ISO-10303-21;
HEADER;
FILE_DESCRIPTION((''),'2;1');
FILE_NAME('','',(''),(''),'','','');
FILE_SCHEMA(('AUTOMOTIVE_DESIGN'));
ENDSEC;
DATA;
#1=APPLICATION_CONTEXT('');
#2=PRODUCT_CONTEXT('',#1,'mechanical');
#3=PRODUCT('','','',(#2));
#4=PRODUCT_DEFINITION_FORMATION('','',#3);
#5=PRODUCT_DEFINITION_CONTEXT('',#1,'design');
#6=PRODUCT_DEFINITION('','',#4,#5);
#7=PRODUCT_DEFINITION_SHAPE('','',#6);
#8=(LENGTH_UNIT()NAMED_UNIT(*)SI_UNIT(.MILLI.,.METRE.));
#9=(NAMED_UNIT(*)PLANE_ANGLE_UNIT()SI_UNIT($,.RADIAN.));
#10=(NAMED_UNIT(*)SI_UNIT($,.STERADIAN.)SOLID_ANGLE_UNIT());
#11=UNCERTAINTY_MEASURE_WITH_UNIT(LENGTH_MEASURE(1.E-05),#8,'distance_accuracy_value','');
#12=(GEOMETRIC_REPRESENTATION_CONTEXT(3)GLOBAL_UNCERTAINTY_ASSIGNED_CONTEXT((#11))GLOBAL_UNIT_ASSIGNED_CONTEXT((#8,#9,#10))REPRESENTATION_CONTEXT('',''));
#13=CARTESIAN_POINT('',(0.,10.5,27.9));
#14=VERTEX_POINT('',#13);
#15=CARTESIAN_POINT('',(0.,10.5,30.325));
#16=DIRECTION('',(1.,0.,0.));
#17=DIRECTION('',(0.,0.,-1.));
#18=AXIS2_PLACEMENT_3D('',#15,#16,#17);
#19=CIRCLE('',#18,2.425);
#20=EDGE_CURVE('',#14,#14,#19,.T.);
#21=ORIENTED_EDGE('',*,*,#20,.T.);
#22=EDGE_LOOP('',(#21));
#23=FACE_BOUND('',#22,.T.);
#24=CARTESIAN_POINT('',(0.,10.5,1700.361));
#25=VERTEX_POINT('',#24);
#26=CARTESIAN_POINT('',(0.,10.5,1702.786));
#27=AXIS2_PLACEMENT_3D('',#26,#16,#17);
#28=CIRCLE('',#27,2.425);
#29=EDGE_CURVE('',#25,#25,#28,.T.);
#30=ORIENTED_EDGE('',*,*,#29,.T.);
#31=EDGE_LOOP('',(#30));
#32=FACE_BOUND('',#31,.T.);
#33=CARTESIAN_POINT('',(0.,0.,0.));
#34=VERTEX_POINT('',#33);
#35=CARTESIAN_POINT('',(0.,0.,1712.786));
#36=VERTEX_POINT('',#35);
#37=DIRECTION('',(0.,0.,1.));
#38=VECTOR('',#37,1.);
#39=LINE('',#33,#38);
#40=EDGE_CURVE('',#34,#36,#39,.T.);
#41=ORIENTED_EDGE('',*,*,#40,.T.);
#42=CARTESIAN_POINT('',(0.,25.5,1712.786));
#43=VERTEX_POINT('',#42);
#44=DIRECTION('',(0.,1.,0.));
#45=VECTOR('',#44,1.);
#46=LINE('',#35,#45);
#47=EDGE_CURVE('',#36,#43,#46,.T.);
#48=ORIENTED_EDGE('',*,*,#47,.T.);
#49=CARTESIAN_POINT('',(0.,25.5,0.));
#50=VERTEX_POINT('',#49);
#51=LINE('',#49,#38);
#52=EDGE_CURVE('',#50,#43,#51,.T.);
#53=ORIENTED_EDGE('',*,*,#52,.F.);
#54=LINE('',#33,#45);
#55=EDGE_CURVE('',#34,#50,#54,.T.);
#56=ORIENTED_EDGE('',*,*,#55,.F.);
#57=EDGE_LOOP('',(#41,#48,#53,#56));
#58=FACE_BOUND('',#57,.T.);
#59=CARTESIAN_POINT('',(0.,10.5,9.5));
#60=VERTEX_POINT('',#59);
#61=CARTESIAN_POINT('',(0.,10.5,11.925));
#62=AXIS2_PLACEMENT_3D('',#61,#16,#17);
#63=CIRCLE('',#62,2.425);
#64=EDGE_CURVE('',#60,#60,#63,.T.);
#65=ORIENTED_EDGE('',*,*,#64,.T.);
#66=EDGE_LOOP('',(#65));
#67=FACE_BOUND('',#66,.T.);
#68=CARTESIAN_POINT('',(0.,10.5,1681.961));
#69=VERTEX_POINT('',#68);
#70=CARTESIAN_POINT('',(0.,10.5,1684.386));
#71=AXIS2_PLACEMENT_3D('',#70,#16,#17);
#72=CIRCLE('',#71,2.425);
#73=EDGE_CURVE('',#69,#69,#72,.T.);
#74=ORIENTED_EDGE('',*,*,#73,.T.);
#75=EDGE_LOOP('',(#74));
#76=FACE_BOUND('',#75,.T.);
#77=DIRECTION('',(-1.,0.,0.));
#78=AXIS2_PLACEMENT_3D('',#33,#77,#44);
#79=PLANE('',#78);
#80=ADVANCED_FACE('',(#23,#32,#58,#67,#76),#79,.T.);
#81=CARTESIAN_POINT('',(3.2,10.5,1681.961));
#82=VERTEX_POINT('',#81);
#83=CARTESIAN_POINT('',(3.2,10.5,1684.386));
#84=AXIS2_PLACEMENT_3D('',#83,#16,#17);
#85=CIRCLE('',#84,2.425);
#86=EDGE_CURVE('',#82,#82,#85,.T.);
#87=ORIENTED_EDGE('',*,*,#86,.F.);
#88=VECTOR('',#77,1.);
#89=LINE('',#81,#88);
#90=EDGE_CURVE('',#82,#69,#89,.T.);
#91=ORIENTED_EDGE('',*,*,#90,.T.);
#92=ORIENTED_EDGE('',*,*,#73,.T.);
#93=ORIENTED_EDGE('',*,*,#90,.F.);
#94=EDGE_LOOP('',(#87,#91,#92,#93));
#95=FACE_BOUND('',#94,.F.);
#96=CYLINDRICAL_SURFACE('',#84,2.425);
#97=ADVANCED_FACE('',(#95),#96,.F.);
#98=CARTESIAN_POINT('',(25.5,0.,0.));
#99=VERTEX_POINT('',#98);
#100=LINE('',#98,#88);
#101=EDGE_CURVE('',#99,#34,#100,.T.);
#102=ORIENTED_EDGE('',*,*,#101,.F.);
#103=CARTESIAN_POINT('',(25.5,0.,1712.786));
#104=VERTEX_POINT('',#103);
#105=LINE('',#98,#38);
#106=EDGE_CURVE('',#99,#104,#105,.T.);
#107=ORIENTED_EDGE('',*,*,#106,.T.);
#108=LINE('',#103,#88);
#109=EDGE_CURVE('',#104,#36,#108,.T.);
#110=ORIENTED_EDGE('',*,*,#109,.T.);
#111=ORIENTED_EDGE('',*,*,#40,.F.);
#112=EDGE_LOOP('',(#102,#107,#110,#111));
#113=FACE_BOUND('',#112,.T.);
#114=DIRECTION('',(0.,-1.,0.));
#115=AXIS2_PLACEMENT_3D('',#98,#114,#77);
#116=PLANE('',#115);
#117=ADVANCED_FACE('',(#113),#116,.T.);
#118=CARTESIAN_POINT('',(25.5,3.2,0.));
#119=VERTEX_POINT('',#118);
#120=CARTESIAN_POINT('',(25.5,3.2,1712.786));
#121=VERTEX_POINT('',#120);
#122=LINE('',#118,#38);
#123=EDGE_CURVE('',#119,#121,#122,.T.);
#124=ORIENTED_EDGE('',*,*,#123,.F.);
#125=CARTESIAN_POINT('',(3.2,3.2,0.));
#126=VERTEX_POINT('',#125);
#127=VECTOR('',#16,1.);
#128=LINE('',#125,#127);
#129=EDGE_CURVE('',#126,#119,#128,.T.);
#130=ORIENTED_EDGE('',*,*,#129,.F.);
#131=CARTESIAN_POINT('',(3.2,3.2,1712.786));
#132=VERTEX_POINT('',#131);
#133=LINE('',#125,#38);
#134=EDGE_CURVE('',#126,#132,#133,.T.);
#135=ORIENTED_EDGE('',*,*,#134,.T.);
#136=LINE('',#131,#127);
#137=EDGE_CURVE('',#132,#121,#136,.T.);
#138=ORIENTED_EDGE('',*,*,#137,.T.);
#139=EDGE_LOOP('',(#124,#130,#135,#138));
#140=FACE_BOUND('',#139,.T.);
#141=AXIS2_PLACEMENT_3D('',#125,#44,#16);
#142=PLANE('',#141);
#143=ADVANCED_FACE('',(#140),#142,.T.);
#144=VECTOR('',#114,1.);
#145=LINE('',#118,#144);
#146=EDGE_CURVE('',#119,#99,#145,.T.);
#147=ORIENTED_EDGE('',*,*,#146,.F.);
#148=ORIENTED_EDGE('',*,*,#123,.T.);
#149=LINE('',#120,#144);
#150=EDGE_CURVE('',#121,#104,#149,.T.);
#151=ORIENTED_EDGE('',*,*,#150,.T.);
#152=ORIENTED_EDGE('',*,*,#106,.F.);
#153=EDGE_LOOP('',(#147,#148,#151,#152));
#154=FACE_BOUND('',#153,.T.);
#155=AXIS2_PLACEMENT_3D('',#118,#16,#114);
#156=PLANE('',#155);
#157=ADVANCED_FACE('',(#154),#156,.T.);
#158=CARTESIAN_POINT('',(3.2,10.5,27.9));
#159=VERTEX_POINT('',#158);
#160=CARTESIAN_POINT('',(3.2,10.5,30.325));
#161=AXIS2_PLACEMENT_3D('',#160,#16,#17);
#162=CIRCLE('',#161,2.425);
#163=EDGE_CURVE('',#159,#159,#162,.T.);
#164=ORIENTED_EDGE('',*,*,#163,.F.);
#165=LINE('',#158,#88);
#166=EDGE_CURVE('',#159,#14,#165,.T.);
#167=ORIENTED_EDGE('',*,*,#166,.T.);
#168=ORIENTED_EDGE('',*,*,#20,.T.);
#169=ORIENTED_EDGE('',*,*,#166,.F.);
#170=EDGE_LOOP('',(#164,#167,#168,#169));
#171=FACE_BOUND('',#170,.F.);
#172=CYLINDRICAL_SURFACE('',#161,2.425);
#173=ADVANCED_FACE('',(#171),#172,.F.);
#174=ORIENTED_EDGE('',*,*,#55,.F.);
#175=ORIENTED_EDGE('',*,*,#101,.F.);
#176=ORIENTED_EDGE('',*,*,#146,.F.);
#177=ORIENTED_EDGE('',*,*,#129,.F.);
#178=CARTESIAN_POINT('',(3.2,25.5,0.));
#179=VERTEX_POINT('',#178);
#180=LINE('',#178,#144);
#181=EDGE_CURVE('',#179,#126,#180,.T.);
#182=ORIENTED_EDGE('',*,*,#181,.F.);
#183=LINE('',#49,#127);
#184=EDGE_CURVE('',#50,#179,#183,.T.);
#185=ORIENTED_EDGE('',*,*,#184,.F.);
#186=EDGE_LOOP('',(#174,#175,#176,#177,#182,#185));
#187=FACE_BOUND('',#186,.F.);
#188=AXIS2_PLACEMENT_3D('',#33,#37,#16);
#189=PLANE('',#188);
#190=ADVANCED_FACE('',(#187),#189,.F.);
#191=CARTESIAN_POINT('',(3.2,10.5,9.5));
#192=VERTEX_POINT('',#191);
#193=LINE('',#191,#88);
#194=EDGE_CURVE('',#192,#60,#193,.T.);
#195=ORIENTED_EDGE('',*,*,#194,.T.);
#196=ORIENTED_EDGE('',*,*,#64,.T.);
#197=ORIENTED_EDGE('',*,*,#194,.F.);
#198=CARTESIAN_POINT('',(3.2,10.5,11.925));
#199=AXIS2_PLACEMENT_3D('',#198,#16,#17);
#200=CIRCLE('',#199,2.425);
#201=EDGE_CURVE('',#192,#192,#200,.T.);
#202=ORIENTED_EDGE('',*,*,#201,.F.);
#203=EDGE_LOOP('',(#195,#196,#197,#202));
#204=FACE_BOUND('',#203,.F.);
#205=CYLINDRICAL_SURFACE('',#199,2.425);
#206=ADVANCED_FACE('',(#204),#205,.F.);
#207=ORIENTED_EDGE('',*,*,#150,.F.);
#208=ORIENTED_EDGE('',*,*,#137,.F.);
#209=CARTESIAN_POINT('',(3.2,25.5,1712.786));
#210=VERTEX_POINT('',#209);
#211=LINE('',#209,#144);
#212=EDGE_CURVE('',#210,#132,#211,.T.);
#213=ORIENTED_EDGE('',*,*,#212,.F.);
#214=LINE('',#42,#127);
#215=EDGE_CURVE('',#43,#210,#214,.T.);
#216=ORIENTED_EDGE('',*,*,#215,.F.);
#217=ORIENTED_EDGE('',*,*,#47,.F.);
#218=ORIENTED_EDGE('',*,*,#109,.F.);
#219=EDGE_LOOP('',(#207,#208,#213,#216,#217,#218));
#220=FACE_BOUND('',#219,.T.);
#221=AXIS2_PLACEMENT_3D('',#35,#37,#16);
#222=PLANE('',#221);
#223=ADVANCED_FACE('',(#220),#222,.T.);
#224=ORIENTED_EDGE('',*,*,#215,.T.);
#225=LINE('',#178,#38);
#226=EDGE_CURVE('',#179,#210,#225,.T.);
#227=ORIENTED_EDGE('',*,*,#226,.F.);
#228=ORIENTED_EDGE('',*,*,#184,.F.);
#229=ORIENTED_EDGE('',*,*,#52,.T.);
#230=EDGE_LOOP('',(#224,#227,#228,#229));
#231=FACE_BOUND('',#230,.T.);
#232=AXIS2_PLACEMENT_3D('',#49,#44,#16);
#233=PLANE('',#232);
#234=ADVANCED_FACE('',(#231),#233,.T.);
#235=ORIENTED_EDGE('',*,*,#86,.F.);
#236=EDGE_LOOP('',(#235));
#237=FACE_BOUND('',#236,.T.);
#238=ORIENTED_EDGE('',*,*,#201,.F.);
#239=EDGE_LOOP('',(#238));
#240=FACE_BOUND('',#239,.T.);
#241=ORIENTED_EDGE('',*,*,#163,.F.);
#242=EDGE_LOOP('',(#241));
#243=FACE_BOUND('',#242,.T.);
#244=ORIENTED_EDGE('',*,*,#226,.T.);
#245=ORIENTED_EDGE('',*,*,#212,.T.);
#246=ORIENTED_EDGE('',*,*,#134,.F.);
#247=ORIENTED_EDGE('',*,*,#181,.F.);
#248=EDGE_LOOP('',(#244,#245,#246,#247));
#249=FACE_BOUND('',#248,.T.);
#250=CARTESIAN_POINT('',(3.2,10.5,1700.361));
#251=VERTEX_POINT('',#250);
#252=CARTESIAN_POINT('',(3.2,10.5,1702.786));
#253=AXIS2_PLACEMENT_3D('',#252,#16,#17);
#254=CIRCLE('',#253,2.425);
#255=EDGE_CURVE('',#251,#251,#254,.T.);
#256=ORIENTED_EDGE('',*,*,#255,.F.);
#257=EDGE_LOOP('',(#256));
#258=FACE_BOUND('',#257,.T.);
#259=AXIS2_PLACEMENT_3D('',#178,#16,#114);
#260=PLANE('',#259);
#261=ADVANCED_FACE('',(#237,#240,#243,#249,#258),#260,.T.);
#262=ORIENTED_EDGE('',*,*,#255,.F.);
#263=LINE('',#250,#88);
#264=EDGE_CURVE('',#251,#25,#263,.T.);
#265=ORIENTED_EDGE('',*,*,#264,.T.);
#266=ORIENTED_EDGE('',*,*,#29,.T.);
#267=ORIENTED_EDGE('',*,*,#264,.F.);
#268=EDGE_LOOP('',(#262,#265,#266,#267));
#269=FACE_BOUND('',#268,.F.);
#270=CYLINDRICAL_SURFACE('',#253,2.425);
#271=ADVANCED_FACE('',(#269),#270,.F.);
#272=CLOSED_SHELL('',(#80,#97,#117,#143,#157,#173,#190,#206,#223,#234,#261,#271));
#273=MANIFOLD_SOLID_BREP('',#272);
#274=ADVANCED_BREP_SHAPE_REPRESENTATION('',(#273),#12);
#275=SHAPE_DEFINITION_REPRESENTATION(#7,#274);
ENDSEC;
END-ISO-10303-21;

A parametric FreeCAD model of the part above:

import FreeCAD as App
import Part
import Sketcher

V = App.Vector


def add_polygon(sketch, points):
    """Adds a closed chain of lines whose ends are joined by coincident constraints."""
    first, n = sketch.GeometryCount, len(points)
    for a, b in zip(points, points[1:] + points[:1]):
        sketch.addGeometry(Part.LineSegment(App.Vector(*a, 0), App.Vector(*b, 0)), False)
    for i in range(n):
        sketch.addConstraint(Sketcher.Constraint("Coincident", first + i, 2, first + (i + 1) % n, 1))

doc = App.newDocument("Part")
body = doc.addObject("PartDesign::Body", "Body")

# Sketch on XY plane
sketch1 = body.newObject("Sketcher::SketchObject", "Sketch")
sketch1.AttachmentSupport = (doc.getObject("XY_Plane"), [""])
sketch1.MapMode = "FlatFace"
add_polygon(sketch1, [(0, 25.5), (0, 0), (25.5, 0), (25.5, 3.2), (3.2, 3.2), (3.2, 25.5)])  # lines 0-5
sketch1.addConstraint(Sketcher.Constraint("Vertical", 0))
sketch1.addConstraint(Sketcher.Constraint("Horizontal", 1))
sketch1.addConstraint(Sketcher.Constraint("Vertical", 2))
sketch1.addConstraint(Sketcher.Constraint("Horizontal", 3))
sketch1.addConstraint(Sketcher.Constraint("Vertical", 4))
sketch1.addConstraint(Sketcher.Constraint("Horizontal", 5))
sketch1.addConstraint(Sketcher.Constraint("Coincident", 0, 2, -1, 1))
sketch1.addConstraint(Sketcher.Constraint("Equal", 1, 0))
sketch1.addConstraint(Sketcher.Constraint("Equal", 5, 2))
sketch1.addConstraint(Sketcher.Constraint("DistanceX", 1, 1, 1, 2, 25.5))
sketch1.addConstraint(Sketcher.Constraint("DistanceX", 5, 2, 5, 1, 3.2))
pad1 = body.newObject("PartDesign::Pad", "Pad")
pad1.Profile = sketch1
pad1.Length = 1712.786

# Sketch on YZ plane
sketch2 = body.newObject("Sketcher::SketchObject", "Sketch001")
sketch2.AttachmentSupport = (doc.getObject("YZ_Plane"), [""])
sketch2.MapMode = "FlatFace"
sketch2.AttachmentOffset = App.Placement(V(0, 0, 3.2), App.Rotation())
sketch2.addGeometry(Part.Circle(V(10.5, 11.9, 0), V(0, 0, 1), 2.4), False)
sketch2.addGeometry(Part.Circle(V(10.5, 30.3, 0), V(0, 0, 1), 2.4), False)
sketch2.addGeometry(Part.Circle(V(10.5, 1702.8, 0), V(0, 0, 1), 2.4), False)
sketch2.addGeometry(Part.Circle(V(10.5, 1684.4, 0), V(0, 0, 1), 2.4), False)
sketch2.addConstraint(Sketcher.Constraint("Equal", 0, 1))
sketch2.addConstraint(Sketcher.Constraint("Equal", 1, 2))
sketch2.addConstraint(Sketcher.Constraint("Equal", 2, 3))
sketch2.addConstraint(Sketcher.Constraint("Vertical", 0, 3, 1, 3))
sketch2.addConstraint(Sketcher.Constraint("Vertical", 1, 3, 2, 3))
sketch2.addConstraint(Sketcher.Constraint("Vertical", 2, 3, 3, 3))
sketch2.addConstraint(Sketcher.Constraint("Diameter", 0, 4.85))
sketch2.addConstraint(Sketcher.Constraint("DistanceY", 0, 3, 1, 3, 18.4))
sketch2.addConstraint(Sketcher.Constraint("DistanceY", 3, 3, 2, 3, 18.4))
sketch2.addConstraint(Sketcher.Constraint("DistanceY", -1, 1, 0, 3, 11.925))
sketch2.addConstraint(Sketcher.Constraint("DistanceX", -1, 1, 0, 3, 10.5))
sketch2.addConstraint(Sketcher.Constraint("DistanceY", -1, 1, 2, 3, 1702.786))
pocket1 = body.newObject("PartDesign::Pocket", "Pocket")
pocket1.Profile = sketch2
pocket1.Length = 1300

doc.recompute()
